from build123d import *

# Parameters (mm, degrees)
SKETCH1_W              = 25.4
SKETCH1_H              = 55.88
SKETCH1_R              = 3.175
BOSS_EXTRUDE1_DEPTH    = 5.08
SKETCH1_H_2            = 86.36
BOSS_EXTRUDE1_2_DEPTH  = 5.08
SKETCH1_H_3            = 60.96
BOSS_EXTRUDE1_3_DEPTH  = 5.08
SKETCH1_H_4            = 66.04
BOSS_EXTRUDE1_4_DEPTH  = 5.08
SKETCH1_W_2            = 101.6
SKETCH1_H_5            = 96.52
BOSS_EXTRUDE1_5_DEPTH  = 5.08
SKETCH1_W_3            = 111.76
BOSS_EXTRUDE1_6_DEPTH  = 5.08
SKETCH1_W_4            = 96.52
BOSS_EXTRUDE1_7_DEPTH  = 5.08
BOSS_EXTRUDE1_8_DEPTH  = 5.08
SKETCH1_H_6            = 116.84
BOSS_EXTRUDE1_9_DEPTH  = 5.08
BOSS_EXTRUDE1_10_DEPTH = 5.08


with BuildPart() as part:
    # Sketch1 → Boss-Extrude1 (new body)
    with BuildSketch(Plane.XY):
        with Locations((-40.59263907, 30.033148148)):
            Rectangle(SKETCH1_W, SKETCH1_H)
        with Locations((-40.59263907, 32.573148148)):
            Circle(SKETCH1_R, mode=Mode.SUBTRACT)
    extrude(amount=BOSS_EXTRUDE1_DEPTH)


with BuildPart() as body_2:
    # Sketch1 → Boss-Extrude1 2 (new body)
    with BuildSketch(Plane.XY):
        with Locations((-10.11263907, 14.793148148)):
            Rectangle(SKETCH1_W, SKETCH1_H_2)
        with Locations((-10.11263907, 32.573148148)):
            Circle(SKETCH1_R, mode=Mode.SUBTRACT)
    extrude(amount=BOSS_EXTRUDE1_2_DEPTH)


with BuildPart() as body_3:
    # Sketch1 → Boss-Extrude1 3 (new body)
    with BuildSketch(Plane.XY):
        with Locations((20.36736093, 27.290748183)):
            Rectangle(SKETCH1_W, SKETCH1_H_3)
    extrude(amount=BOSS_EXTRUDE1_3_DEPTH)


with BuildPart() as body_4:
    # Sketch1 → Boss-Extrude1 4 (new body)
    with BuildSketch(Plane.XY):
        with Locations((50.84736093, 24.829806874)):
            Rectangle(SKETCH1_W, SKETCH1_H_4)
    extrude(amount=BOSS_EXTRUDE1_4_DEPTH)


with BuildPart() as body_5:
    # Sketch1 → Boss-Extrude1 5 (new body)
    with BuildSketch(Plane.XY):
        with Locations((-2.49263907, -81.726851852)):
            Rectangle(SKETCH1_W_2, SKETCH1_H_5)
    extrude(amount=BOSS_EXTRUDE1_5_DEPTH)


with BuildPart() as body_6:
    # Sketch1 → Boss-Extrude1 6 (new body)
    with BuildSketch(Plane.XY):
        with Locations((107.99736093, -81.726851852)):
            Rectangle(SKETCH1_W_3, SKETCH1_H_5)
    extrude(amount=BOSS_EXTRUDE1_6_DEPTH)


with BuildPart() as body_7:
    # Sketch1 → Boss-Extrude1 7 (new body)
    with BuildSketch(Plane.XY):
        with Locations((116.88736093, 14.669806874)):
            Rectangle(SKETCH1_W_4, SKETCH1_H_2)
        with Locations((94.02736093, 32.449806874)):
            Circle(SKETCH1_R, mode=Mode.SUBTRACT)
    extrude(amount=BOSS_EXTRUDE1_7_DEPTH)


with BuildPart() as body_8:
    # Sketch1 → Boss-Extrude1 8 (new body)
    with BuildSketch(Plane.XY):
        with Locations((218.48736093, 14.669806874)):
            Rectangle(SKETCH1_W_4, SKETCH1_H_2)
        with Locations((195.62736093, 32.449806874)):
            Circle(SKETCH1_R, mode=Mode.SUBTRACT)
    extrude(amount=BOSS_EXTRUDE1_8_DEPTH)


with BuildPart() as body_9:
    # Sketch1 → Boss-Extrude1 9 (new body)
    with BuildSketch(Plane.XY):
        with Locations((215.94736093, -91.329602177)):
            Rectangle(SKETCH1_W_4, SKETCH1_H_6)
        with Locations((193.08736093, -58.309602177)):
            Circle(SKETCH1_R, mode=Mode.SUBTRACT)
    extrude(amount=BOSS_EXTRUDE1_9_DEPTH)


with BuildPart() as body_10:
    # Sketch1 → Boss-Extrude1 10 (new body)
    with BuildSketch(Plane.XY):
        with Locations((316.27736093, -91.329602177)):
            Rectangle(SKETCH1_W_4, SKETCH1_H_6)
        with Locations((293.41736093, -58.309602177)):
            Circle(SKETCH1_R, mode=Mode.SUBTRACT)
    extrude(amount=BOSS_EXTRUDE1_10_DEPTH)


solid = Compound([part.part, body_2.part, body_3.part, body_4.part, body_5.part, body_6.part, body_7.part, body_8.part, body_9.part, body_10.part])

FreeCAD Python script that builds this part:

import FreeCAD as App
import Part
import Sketcher
Q = App.Units.Quantity


def add_polygon(sketch, points):
    """Adds a closed chain of lines whose ends are joined by coincident constraints."""
    first, n = sketch.GeometryCount, len(points)
    for a, b in zip(points, points[1:] + points[:1]):
        sketch.addGeometry(Part.LineSegment(App.Vector(*a, 0), App.Vector(*b, 0)), False)
    for i in range(n):
        sketch.addConstraint(Sketcher.Constraint("Coincident", first + i, 2, first + (i + 1) % n, 1))

doc = App.newDocument("Part")
body = doc.addObject("PartDesign::Body", "Body")

sketch1 = body.newObject("Sketcher::SketchObject", "Sketch")
sketch1.AttachmentSupport = (doc.getObject("XY_Plane"), [""])
sketch1.MapMode = "FlatFace"
add_polygon(sketch1, [(-53.292639, 57.973148), (-53.292639, 2.093148), (-27.892639, 2.093148), (-27.892639, 57.973148)])
sketch1.addGeometry(Part.Circle(App.Vector(-40.592639, 32.573148, 0), App.Vector(0, 0, 1), 3.175), False)
sketch1.addConstraint([
    Sketcher.Constraint("Vertical", 0),
    Sketcher.Constraint("Horizontal", 1),
    Sketcher.Constraint("Vertical", 2),
    Sketcher.Constraint("Horizontal", 3),
    Sketcher.Constraint("Diameter", 4, Q("0.25 in")),
    Sketcher.Constraint("DistanceX", 1, 1, 1, 2, Q("1 in")),
    Sketcher.Constraint("DistanceY", 0, 2, 0, 1, Q("2.2 in")),
    Sketcher.Constraint("DistanceY", 4, 3, 2, 2, Q("1 in")),
    Sketcher.Constraint("DistanceX", 0, 2, 4, 3, Q("0.5 in")),
    Sketcher.Constraint("DistanceX", 4, 3, -1, 1, Q("40.592639 mm")),
    Sketcher.Constraint("DistanceY", -1, 1, 4, 3, Q("32.573148 mm")),
])
pad1 = body.newObject("PartDesign::Pad", "Pad")
pad1.Profile = sketch1
pad1.Length = Q("0.2 in")
body2 = doc.addObject("PartDesign::Body", "Body001")

sketch2 = body2.newObject("Sketcher::SketchObject", "Sketch001")
sketch2.AttachmentSupport = (doc.getObject("XY_Plane001"), [""])
sketch2.MapMode = "FlatFace"
add_polygon(sketch2, [(-22.812639, 57.973148), (-22.812639, -28.386852), (2.587361, -28.386852), (2.587361, 57.973148)])
sketch2.addGeometry(Part.Circle(App.Vector(-10.112639, 32.573148, 0), App.Vector(0, 0, 1), 3.175), False)
sketch2.addConstraint([
    Sketcher.Constraint("Vertical", 0),
    Sketcher.Constraint("Horizontal", 1),
    Sketcher.Constraint("Vertical", 2),
    Sketcher.Constraint("Horizontal", 3),
    Sketcher.Constraint("Diameter", 4, Q("0.25 in")),
    Sketcher.Constraint("DistanceX", 1, 1, 1, 2, Q("1 in")),
    Sketcher.Constraint("DistanceY", 0, 2, 0, 1, Q("3.4 in")),
    Sketcher.Constraint("DistanceY", 4, 3, 2, 2, Q("1 in")),
    Sketcher.Constraint("DistanceX", 0, 2, 4, 3, Q("0.5 in")),
    Sketcher.Constraint("DistanceX", 4, 3, -1, 1, Q("10.112639 mm")),
    Sketcher.Constraint("DistanceY", -1, 1, 4, 3, Q("32.573148 mm")),
])
pad2 = body2.newObject("PartDesign::Pad", "Pad001")
pad2.Profile = sketch2
pad2.Length = Q("0.2 in")
body3 = doc.addObject("PartDesign::Body", "Body002")

sketch3 = body3.newObject("Sketcher::SketchObject", "Sketch002")
sketch3.AttachmentSupport = (doc.getObject("XY_Plane002"), [""])
sketch3.MapMode = "FlatFace"
add_polygon(sketch3, [(7.667361, 57.770748), (7.667361, -3.189252), (33.067361, -3.189252), (33.067361, 57.770748)])
sketch3.addConstraint([
    Sketcher.Constraint("Vertical", 0),
    Sketcher.Constraint("Horizontal", 1),
    Sketcher.Constraint("Vertical", 2),
    Sketcher.Constraint("Horizontal", 3),
    Sketcher.Constraint("DistanceX", 1, 1, 1, 2, Q("1 in")),
    Sketcher.Constraint("DistanceY", 0, 2, 0, 1, Q("2.4 in")),
    Sketcher.Constraint("DistanceX", -1, 1, 0, 2, Q("7.667361 mm")),
    Sketcher.Constraint("DistanceY", 0, 2, -1, 1, Q("3.189252 mm")),
])
pad3 = body3.newObject("PartDesign::Pad", "Pad002")
pad3.Profile = sketch3
pad3.Length = Q("0.2 in")
body4 = doc.addObject("PartDesign::Body", "Body003")

sketch4 = body4.newObject("Sketcher::SketchObject", "Sketch003")
sketch4.AttachmentSupport = (doc.getObject("XY_Plane003"), [""])
sketch4.MapMode = "FlatFace"
add_polygon(sketch4, [(38.147361, 57.849807), (38.147361, -8.190193), (63.547361, -8.190193), (63.547361, 57.849807)])
sketch4.addConstraint([
    Sketcher.Constraint("Vertical", 0),
    Sketcher.Constraint("Horizontal", 1),
    Sketcher.Constraint("Vertical", 2),
    Sketcher.Constraint("Horizontal", 3),
    Sketcher.Constraint("DistanceX", 1, 1, 1, 2, Q("1 in")),
    Sketcher.Constraint("DistanceY", 0, 2, 0, 1, Q("2.6 in")),
    Sketcher.Constraint("DistanceX", -1, 1, 0, 2, Q("38.147361 mm")),
    Sketcher.Constraint("DistanceY", 0, 2, -1, 1, Q("8.190193 mm")),
])
pad4 = body4.newObject("PartDesign::Pad", "Pad003")
pad4.Profile = sketch4
pad4.Length = Q("0.2 in")
body5 = doc.addObject("PartDesign::Body", "Body004")

sketch5 = body5.newObject("Sketcher::SketchObject", "Sketch004")
sketch5.AttachmentSupport = (doc.getObject("XY_Plane004"), [""])
sketch5.MapMode = "FlatFace"
add_polygon(sketch5, [(-53.292639, -33.466852), (-53.292639, -129.986852), (48.307361, -129.986852), (48.307361, -33.466852)])
sketch5.addConstraint([
    Sketcher.Constraint("Vertical", 0),
    Sketcher.Constraint("Horizontal", 1),
    Sketcher.Constraint("Vertical", 2),
    Sketcher.Constraint("Horizontal", 3),
    Sketcher.Constraint("DistanceX", 1, 1, 1, 2, Q("4 in")),
    Sketcher.Constraint("DistanceY", 0, 2, 0, 1, Q("3.8 in")),
    Sketcher.Constraint("DistanceX", 0, 2, -1, 1, Q("53.292639 mm")),
    Sketcher.Constraint("DistanceY", 0, 2, -1, 1, Q("129.986852 mm")),
])
pad5 = body5.newObject("PartDesign::Pad", "Pad004")
pad5.Profile = sketch5
pad5.Length = Q("0.2 in")
body6 = doc.addObject("PartDesign::Body", "Body005")

sketch6 = body6.newObject("Sketcher::SketchObject", "Sketch005")
sketch6.AttachmentSupport = (doc.getObject("XY_Plane005"), [""])
sketch6.MapMode = "FlatFace"
add_polygon(sketch6, [(52.117361, -33.466852), (52.117361, -129.986852), (163.877361, -129.986852), (163.877361, -33.466852)])
sketch6.addConstraint([
    Sketcher.Constraint("Vertical", 0),
    Sketcher.Constraint("Horizontal", 1),
    Sketcher.Constraint("Vertical", 2),
    Sketcher.Constraint("Horizontal", 3),
    Sketcher.Constraint("DistanceX", 1, 1, 1, 2, Q("4.4 in")),
    Sketcher.Constraint("DistanceY", 0, 2, 0, 1, Q("3.8 in")),
    Sketcher.Constraint("DistanceX", -1, 1, 0, 2, Q("52.117361 mm")),
    Sketcher.Constraint("DistanceY", 0, 2, -1, 1, Q("129.986852 mm")),
])
pad6 = body6.newObject("PartDesign::Pad", "Pad005")
pad6.Profile = sketch6
pad6.Length = Q("0.2 in")
body7 = doc.addObject("PartDesign::Body", "Body006")

sketch7 = body7.newObject("Sketcher::SketchObject", "Sketch006")
sketch7.AttachmentSupport = (doc.getObject("XY_Plane006"), [""])
sketch7.MapMode = "FlatFace"
add_polygon(sketch7, [(68.627361, 57.849807), (68.627361, -28.510193), (165.147361, -28.510193), (165.147361, 57.849807)])
sketch7.addGeometry(Part.Circle(App.Vector(94.027361, 32.449807, 0), App.Vector(0, 0, 1), 3.175), False)
sketch7.addConstraint([
    Sketcher.Constraint("Vertical", 0),
    Sketcher.Constraint("Horizontal", 1),
    Sketcher.Constraint("Vertical", 2),
    Sketcher.Constraint("Horizontal", 3),
    Sketcher.Constraint("Diameter", 4, Q("0.25 in")),
    Sketcher.Constraint("DistanceX", 1, 1, 1, 2, Q("3.8 in")),
    Sketcher.Constraint("DistanceY", 0, 2, 0, 1, Q("3.4 in")),
    Sketcher.Constraint("DistanceX", 0, 2, 4, 3, Q("1 in")),
    Sketcher.Constraint("DistanceY", 4, 3, 2, 2, Q("1 in")),
    Sketcher.Constraint("DistanceX", -1, 1, 4, 3, Q("94.027361 mm")),
    Sketcher.Constraint("DistanceY", -1, 1, 4, 3, Q("32.449807 mm")),
])
pad7 = body7.newObject("PartDesign::Pad", "Pad006")
pad7.Profile = sketch7
pad7.Length = Q("0.2 in")
body8 = doc.addObject("PartDesign::Body", "Body007")

sketch8 = body8.newObject("Sketcher::SketchObject", "Sketch007")
sketch8.AttachmentSupport = (doc.getObject("XY_Plane007"), [""])
sketch8.MapMode = "FlatFace"
add_polygon(sketch8, [(170.227361, 57.849807), (170.227361, -28.510193), (266.747361, -28.510193), (266.747361, 57.849807)])
sketch8.addGeometry(Part.Circle(App.Vector(195.627361, 32.449807, 0), App.Vector(0, 0, 1), 3.175), False)
sketch8.addConstraint([
    Sketcher.Constraint("Vertical", 0),
    Sketcher.Constraint("Horizontal", 1),
    Sketcher.Constraint("Vertical", 2),
    Sketcher.Constraint("Horizontal", 3),
    Sketcher.Constraint("Diameter", 4, Q("0.25 in")),
    Sketcher.Constraint("DistanceX", 1, 1, 1, 2, Q("3.8 in")),
    Sketcher.Constraint("DistanceY", 0, 2, 0, 1, Q("3.4 in")),
    Sketcher.Constraint("DistanceX", 0, 2, 4, 3, Q("1 in")),
    Sketcher.Constraint("DistanceY", 4, 3, 2, 2, Q("1 in")),
    Sketcher.Constraint("DistanceX", -1, 1, 4, 3, Q("195.627361 mm")),
    Sketcher.Constraint("DistanceY", -1, 1, 4, 3, Q("32.449807 mm")),
])
pad8 = body8.newObject("PartDesign::Pad", "Pad007")
pad8.Profile = sketch8
pad8.Length = Q("0.2 in")
body9 = doc.addObject("PartDesign::Body", "Body008")

sketch9 = body9.newObject("Sketcher::SketchObject", "Sketch008")
sketch9.AttachmentSupport = (doc.getObject("XY_Plane008"), [""])
sketch9.MapMode = "FlatFace"
add_polygon(sketch9, [(167.687361, -32.909602), (167.687361, -149.749602), (264.207361, -149.749602), (264.207361, -32.909602)])
sketch9.addGeometry(Part.Circle(App.Vector(193.087361, -58.309602, 0), App.Vector(0, 0, 1), 3.175), False)
sketch9.addConstraint([
    Sketcher.Constraint("Vertical", 0),
    Sketcher.Constraint("Horizontal", 1),
    Sketcher.Constraint("Vertical", 2),
    Sketcher.Constraint("Horizontal", 3),
    Sketcher.Constraint("Diameter", 4, Q("0.25 in")),
    Sketcher.Constraint("DistanceX", 1, 1, 1, 2, Q("3.8 in")),
    Sketcher.Constraint("DistanceY", 0, 2, 0, 1, Q("4.6 in")),
    Sketcher.Constraint("DistanceX", 0, 2, 4, 3, Q("1 in")),
    Sketcher.Constraint("DistanceY", 4, 3, 2, 2, Q("1 in")),
    Sketcher.Constraint("DistanceX", -1, 1, 4, 3, Q("193.087361 mm")),
    Sketcher.Constraint("DistanceY", 4, 3, -1, 1, Q("58.309602 mm")),
])
pad9 = body9.newObject("PartDesign::Pad", "Pad008")
pad9.Profile = sketch9
pad9.Length = Q("0.2 in")
body10 = doc.addObject("PartDesign::Body", "Body009")

sketch10 = body10.newObject("Sketcher::SketchObject", "Sketch009")
sketch10.AttachmentSupport = (doc.getObject("XY_Plane009"), [""])
sketch10.MapMode = "FlatFace"
add_polygon(sketch10, [(268.017361, -32.909602), (268.017361, -149.749602), (364.537361, -149.749602), (364.537361, -32.909602)])
sketch10.addGeometry(Part.Circle(App.Vector(293.417361, -58.309602, 0), App.Vector(0, 0, 1), 3.175), False)
sketch10.addConstraint([
    Sketcher.Constraint("Vertical", 0),
    Sketcher.Constraint("Horizontal", 1),
    Sketcher.Constraint("Vertical", 2),
    Sketcher.Constraint("Horizontal", 3),
    Sketcher.Constraint("Diameter", 4, Q("0.25 in")),
    Sketcher.Constraint("DistanceX", 1, 1, 1, 2, Q("3.8 in")),
    Sketcher.Constraint("DistanceY", 0, 2, 0, 1, Q("4.6 in")),
    Sketcher.Constraint("DistanceX", 0, 2, 4, 3, Q("1 in")),
    Sketcher.Constraint("DistanceY", 4, 3, 2, 2, Q("1 in")),
    Sketcher.Constraint("DistanceX", -1, 1, 4, 3, Q("293.417361 mm")),
    Sketcher.Constraint("DistanceY", 4, 3, -1, 1, Q("58.309602 mm")),
])
pad10 = body10.newObject("PartDesign::Pad", "Pad009")
pad10.Profile = sketch10
pad10.Length = Q("0.2 in")

doc.recompute()
